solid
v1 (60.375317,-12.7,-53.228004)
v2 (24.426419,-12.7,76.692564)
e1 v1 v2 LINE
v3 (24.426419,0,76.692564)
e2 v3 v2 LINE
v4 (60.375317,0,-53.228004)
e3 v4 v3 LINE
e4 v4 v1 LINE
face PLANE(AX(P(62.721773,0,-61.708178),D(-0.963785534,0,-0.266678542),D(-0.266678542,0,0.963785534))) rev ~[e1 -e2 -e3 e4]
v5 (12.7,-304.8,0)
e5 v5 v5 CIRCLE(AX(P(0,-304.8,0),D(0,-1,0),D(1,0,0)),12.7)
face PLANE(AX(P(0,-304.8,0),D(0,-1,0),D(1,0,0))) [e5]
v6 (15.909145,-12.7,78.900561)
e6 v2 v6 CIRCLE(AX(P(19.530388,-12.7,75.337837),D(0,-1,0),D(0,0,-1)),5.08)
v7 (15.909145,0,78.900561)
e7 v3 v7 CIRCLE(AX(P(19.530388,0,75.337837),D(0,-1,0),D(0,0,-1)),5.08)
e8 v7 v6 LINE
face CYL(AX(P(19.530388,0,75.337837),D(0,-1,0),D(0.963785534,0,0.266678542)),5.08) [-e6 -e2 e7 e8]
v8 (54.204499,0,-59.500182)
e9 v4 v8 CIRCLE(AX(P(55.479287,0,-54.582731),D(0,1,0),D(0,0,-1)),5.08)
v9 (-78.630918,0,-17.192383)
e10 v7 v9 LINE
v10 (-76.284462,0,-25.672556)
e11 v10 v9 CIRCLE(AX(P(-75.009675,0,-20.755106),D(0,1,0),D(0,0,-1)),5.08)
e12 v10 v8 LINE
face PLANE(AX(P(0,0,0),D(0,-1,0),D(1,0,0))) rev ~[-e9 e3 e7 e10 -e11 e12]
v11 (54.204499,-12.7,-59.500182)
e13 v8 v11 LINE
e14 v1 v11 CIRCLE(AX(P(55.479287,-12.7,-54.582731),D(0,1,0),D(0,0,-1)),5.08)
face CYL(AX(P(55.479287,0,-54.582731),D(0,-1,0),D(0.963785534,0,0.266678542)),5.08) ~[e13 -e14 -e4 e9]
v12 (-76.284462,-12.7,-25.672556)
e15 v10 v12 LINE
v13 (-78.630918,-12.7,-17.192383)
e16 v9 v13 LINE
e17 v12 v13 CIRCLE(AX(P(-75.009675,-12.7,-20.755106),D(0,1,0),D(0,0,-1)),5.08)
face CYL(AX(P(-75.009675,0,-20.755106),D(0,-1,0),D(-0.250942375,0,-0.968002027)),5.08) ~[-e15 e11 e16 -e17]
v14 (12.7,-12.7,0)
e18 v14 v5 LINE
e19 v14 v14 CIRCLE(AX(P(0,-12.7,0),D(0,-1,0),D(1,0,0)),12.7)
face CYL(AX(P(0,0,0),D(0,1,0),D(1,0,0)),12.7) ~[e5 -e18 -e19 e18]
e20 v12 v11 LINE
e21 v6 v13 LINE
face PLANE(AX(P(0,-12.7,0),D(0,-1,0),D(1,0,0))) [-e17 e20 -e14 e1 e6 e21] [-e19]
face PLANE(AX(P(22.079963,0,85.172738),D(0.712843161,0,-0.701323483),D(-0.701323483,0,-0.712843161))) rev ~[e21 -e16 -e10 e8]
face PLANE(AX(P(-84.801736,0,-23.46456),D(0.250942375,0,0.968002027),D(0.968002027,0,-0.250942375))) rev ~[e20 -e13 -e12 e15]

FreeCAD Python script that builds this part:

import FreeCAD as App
import Part
import Sketcher
from FreeCAD import Vector
Q = App.Units.Quantity


def edges_at(feature, points):
    """Names of the edges that pass closest to the given points."""
    edges = feature.Shape.Edges
    near = lambda p: min(range(len(edges)), key=lambda i: edges[i].distToShape(Part.Vertex(*p))[0])
    return sorted({f"Edge{near(p) + 1}" for p in points})

doc = App.newDocument("Part")
params = doc.addObject("Spreadsheet::Sheet", "Params")
for row, (alias, value) in enumerate([
    ("sketch1_diameter", "1 in"),
    ("pad1_length", "12 in"),
    ("sketch2_diameter", "1 in"),
    ("sketch2_length", "6 in"),
    ("pad2_length", "0.5 in"),
    ("fillet_radius", "0.2 in"),
], start=1):
    params.set(f"A{row}", alias)
    params.set(f"B{row}", "=" + value)
    params.setAlias(f"B{row}", alias)

body = doc.addObject("PartDesign::Body", "Body")

sketch1 = doc.addObject("Sketcher::SketchObject", "Sketch")
body.addObject(sketch1)
sketch1.AttachmentSupport = (doc.XZ_Plane, [""])
sketch1.MapMode = "FlatFace"
sketch1.addGeometry(Part.Circle(Vector(0, 0, 0), Vector(0, 0, 1), 13), False)
sketch1.addConstraint([
    Sketcher.Constraint("Coincident", 0, 3, -1, 1),
    Sketcher.Constraint("Diameter", 0, Q("1 in")),
])
sketch1.setExpression("Constraints[1]", "Params.sketch1_diameter")
pad1 = doc.addObject("PartDesign::Pad", "Pad")
body.addObject(pad1)
pad1.Profile = sketch1
pad1.setExpression("Length", "Params.pad1_length")

sketch2 = doc.addObject("Sketcher::SketchObject", "Sketch001")
body.addObject(sketch2)
sketch2.AttachmentSupport = (doc.XZ_Plane, [""])
sketch2.MapMode = "FlatFace"
sketch2.addGeometry([
    Part.LineSegment(Vector(63, -62, 0), Vector(22, 85, 0)),
    Part.LineSegment(Vector(22, 85, 0), Vector(-85, -23, 0)),
    Part.LineSegment(Vector(-85, -23, 0), Vector(63, -62, 0)),
    Part.Circle(Vector(0, 0, 0), Vector(0, 0, 1), 13),
], False)
sketch2.addConstraint([
    Sketcher.Constraint("Coincident", 0, 2, 1, 1),
    Sketcher.Constraint("Coincident", 1, 2, 2, 1),
    Sketcher.Constraint("Coincident", 2, 2, 0, 1),
    Sketcher.Constraint("Coincident", 3, 3, -1, 1),
    Sketcher.Constraint("Equal", 0, 1),
    Sketcher.Constraint("Equal", 1, 2),
    Sketcher.Constraint("Diameter", 3, Q("1 in")),
    Sketcher.Constraint("Distance", 0, Q("6 in")),
    Sketcher.Constraint("DistanceX", 1, 2, 0, 2, Q("106.881699 mm")),
    Sketcher.Constraint("DistanceY", 1, 2, -1, 1, Q("23.46456 mm")),
    Sketcher.Constraint("DistanceX", -1, 1, 0, 2, Q("22.079963 mm")),
])
sketch2.setExpression("Constraints[6]", "Params.sketch2_diameter")
sketch2.setExpression("Constraints[7]", "Params.sketch2_length")
pad2 = doc.addObject("PartDesign::Pad", "Pad001")
body.addObject(pad2)
pad2.Profile = sketch2
pad2.setExpression("Length", "Params.pad2_length")
doc.recompute()

fillet = doc.addObject("PartDesign::Fillet", "Fillet")
body.addObject(fillet)
fillet.Base = (pad2, edges_at(pad2, [(-84.802, -6.35, -23.465), (22.08, -6.35, 85.173), (62.722, -6.35, -61.708)]))
fillet.setExpression("Radius", "Params.fillet_radius")

doc.recompute()
